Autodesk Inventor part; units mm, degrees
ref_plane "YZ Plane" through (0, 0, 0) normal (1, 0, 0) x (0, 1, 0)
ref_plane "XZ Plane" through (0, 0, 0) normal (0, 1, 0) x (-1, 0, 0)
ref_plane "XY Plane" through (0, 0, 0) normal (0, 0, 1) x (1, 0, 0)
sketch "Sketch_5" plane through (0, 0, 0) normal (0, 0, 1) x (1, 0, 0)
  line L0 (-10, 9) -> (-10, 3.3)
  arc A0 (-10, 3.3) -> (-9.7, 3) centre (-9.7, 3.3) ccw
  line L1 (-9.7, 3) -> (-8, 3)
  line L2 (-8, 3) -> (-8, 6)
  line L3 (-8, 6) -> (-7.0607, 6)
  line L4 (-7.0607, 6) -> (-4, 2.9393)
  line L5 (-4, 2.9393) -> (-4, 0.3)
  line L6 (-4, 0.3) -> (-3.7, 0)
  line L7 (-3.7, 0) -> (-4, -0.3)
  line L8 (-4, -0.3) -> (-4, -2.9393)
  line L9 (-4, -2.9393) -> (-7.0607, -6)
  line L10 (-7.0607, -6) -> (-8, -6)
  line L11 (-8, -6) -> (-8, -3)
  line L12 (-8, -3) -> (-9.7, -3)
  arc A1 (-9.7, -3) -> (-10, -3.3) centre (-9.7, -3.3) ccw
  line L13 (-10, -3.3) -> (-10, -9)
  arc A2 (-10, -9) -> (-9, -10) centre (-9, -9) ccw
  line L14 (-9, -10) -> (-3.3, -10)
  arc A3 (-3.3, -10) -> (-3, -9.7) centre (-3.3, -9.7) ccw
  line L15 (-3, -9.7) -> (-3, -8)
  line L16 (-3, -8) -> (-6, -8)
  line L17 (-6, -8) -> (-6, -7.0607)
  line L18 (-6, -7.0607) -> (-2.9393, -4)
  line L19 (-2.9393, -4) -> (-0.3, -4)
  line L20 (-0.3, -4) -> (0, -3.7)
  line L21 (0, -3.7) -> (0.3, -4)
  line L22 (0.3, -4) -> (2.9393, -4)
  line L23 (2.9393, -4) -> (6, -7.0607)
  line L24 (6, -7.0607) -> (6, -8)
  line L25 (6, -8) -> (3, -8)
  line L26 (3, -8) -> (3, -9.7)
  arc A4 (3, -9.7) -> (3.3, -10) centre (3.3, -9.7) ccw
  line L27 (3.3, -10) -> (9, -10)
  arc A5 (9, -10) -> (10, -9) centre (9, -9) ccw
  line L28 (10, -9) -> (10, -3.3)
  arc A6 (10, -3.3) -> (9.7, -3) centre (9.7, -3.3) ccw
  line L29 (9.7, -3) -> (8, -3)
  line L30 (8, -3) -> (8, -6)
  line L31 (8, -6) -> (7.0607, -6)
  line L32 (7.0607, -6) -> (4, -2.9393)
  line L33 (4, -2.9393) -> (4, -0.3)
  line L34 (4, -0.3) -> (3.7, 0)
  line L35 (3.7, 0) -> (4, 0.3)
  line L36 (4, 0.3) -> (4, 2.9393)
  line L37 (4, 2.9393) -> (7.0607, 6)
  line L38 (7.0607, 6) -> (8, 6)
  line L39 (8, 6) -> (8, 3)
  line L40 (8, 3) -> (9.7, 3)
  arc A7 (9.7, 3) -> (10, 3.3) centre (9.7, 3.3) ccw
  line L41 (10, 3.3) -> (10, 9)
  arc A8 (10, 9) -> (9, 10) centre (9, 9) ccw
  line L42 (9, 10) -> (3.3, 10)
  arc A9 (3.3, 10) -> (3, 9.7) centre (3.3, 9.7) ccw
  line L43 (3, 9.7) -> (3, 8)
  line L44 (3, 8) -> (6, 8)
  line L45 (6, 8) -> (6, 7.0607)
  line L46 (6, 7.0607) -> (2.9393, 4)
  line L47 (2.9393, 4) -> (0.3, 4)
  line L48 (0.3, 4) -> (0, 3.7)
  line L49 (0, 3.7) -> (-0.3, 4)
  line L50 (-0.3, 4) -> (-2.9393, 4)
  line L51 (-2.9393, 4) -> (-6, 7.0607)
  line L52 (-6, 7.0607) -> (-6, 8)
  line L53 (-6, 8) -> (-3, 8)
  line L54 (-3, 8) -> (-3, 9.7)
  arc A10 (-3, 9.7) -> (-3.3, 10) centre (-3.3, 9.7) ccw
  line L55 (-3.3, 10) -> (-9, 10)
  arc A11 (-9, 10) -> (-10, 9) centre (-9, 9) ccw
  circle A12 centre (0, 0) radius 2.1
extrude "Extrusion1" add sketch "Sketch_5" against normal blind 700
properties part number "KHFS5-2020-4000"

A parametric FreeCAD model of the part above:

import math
import FreeCAD as App
import Part
import Sketcher

V = App.Vector
Q = App.Units.Quantity

doc = App.newDocument("Part")
body = doc.addObject("PartDesign::Body", "Body")

sketch1 = body.newObject("Sketcher::SketchObject", "Sketch")
sketch1.AttachmentSupport = (doc.getObject("XY_Plane"), [""])
sketch1.MapMode = "FlatFace"
sketch1.addGeometry(Part.ArcOfCircle(Part.Circle(V(-9, 9, 0), V(0, 0, 1), 1), math.radians(90), math.radians(180)), False)
sketch1.addGeometry(Part.LineSegment(V(-10, 9, 0), V(-10, 3.3, 0)), False)
sketch1.addGeometry(Part.ArcOfCircle(Part.Circle(V(-9.7, 3.3, 0), V(0, 0, 1), 0.3), math.radians(180), math.radians(270)), False)
sketch1.addGeometry(Part.LineSegment(V(-9.7, 3, 0), V(-8, 3, 0)), False)
sketch1.addGeometry(Part.LineSegment(V(-8, 3, 0), V(-8, 6, 0)), False)
sketch1.addGeometry(Part.LineSegment(V(-8, 6, 0), V(-7.06, 6, 0)), False)
sketch1.addGeometry(Part.LineSegment(V(-7.06, 6, 0), V(-4, 2.94, 0)), False)
sketch1.addGeometry(Part.LineSegment(V(-4, 2.94, 0), V(-4, 0.3, 0)), False)
sketch1.addGeometry(Part.LineSegment(V(-4, 0.3, 0), V(-3.7, 0, 0)), False)
sketch1.addGeometry(Part.LineSegment(V(-3.7, 0, 0), V(-4, -0.3, 0)), False)
sketch1.addGeometry(Part.LineSegment(V(-4, -0.3, 0), V(-4, -2.94, 0)), False)
sketch1.addGeometry(Part.LineSegment(V(-4, -2.94, 0), V(-7.06, -6, 0)), False)
sketch1.addGeometry(Part.LineSegment(V(-7.06, -6, 0), V(-8, -6, 0)), False)
sketch1.addGeometry(Part.LineSegment(V(-8, -6, 0), V(-8, -3, 0)), False)
sketch1.addGeometry(Part.LineSegment(V(-8, -3, 0), V(-9.7, -3, 0)), False)
sketch1.addGeometry(Part.ArcOfCircle(Part.Circle(V(-9.7, -3.3, 0), V(0, 0, 1), 0.3), math.radians(90), math.radians(180)), False)
sketch1.addGeometry(Part.LineSegment(V(-10, -3.3, 0), V(-10, -9, 0)), False)
sketch1.addGeometry(Part.ArcOfCircle(Part.Circle(V(-9, -9, 0), V(0, 0, 1), 1), math.radians(180), math.radians(270)), False)
sketch1.addGeometry(Part.LineSegment(V(-9, -10, 0), V(-3.3, -10, 0)), False)
sketch1.addGeometry(Part.ArcOfCircle(Part.Circle(V(-3.3, -9.7, 0), V(0, 0, 1), 0.3), math.radians(-90), math.radians(0)), False)
sketch1.addGeometry(Part.LineSegment(V(-3, -9.7, 0), V(-3, -8, 0)), False)
sketch1.addGeometry(Part.LineSegment(V(-3, -8, 0), V(-6, -8, 0)), False)
sketch1.addGeometry(Part.LineSegment(V(-6, -8, 0), V(-6, -7.06, 0)), False)
sketch1.addGeometry(Part.LineSegment(V(-6, -7.06, 0), V(-2.94, -4, 0)), False)
sketch1.addGeometry(Part.LineSegment(V(-2.94, -4, 0), V(-0.3, -4, 0)), False)
sketch1.addGeometry(Part.LineSegment(V(-0.3, -4, 0), V(0, -3.7, 0)), False)
sketch1.addGeometry(Part.LineSegment(V(0, -3.7, 0), V(0.3, -4, 0)), False)
sketch1.addGeometry(Part.LineSegment(V(0.3, -4, 0), V(2.94, -4, 0)), False)
sketch1.addGeometry(Part.LineSegment(V(2.94, -4, 0), V(6, -7.06, 0)), False)
sketch1.addGeometry(Part.LineSegment(V(6, -7.06, 0), V(6, -8, 0)), False)
sketch1.addGeometry(Part.LineSegment(V(6, -8, 0), V(3, -8, 0)), False)
sketch1.addGeometry(Part.LineSegment(V(3, -8, 0), V(3, -9.7, 0)), False)
sketch1.addGeometry(Part.ArcOfCircle(Part.Circle(V(3.3, -9.7, 0), V(0, 0, 1), 0.3), math.radians(180), math.radians(270)), False)
sketch1.addGeometry(Part.LineSegment(V(3.3, -10, 0), V(9, -10, 0)), False)
sketch1.addGeometry(Part.ArcOfCircle(Part.Circle(V(9, -9, 0), V(0, 0, 1), 1), math.radians(-90), math.radians(0)), False)
sketch1.addGeometry(Part.LineSegment(V(10, -9, 0), V(10, -3.3, 0)), False)
sketch1.addGeometry(Part.ArcOfCircle(Part.Circle(V(9.7, -3.3, 0), V(0, 0, 1), 0.3), math.radians(0), math.radians(90)), False)
sketch1.addGeometry(Part.LineSegment(V(9.7, -3, 0), V(8, -3, 0)), False)
sketch1.addGeometry(Part.LineSegment(V(8, -3, 0), V(8, -6, 0)), False)
sketch1.addGeometry(Part.LineSegment(V(8, -6, 0), V(7.06, -6, 0)), False)
sketch1.addGeometry(Part.LineSegment(V(7.06, -6, 0), V(4, -2.94, 0)), False)
sketch1.addGeometry(Part.LineSegment(V(4, -2.94, 0), V(4, -0.3, 0)), False)
sketch1.addGeometry(Part.LineSegment(V(4, -0.3, 0), V(3.7, 0, 0)), False)
sketch1.addGeometry(Part.LineSegment(V(3.7, 0, 0), V(4, 0.3, 0)), False)
sketch1.addGeometry(Part.LineSegment(V(4, 0.3, 0), V(4, 2.94, 0)), False)
sketch1.addGeometry(Part.LineSegment(V(4, 2.94, 0), V(7.06, 6, 0)), False)
sketch1.addGeometry(Part.LineSegment(V(7.06, 6, 0), V(8, 6, 0)), False)
sketch1.addGeometry(Part.LineSegment(V(8, 6, 0), V(8, 3, 0)), False)
sketch1.addGeometry(Part.LineSegment(V(8, 3, 0), V(9.7, 3, 0)), False)
sketch1.addGeometry(Part.ArcOfCircle(Part.Circle(V(9.7, 3.3, 0), V(0, 0, 1), 0.3), math.radians(-90), math.radians(0)), False)
sketch1.addGeometry(Part.LineSegment(V(10, 3.3, 0), V(10, 9, 0)), False)
sketch1.addGeometry(Part.ArcOfCircle(Part.Circle(V(9, 9, 0), V(0, 0, 1), 1), math.radians(0), math.radians(90)), False)
sketch1.addGeometry(Part.LineSegment(V(9, 10, 0), V(3.3, 10, 0)), False)
sketch1.addGeometry(Part.ArcOfCircle(Part.Circle(V(3.3, 9.7, 0), V(0, 0, 1), 0.3), math.radians(90), math.radians(180)), False)
sketch1.addGeometry(Part.LineSegment(V(3, 9.7, 0), V(3, 8, 0)), False)
sketch1.addGeometry(Part.LineSegment(V(3, 8, 0), V(6, 8, 0)), False)
sketch1.addGeometry(Part.LineSegment(V(6, 8, 0), V(6, 7.06, 0)), False)
sketch1.addGeometry(Part.LineSegment(V(6, 7.06, 0), V(2.94, 4, 0)), False)
sketch1.addGeometry(Part.LineSegment(V(2.94, 4, 0), V(0.3, 4, 0)), False)
sketch1.addGeometry(Part.LineSegment(V(0.3, 4, 0), V(0, 3.7, 0)), False)
sketch1.addGeometry(Part.LineSegment(V(0, 3.7, 0), V(-0.3, 4, 0)), False)
sketch1.addGeometry(Part.LineSegment(V(-0.3, 4, 0), V(-2.94, 4, 0)), False)
sketch1.addGeometry(Part.LineSegment(V(-2.94, 4, 0), V(-6, 7.06, 0)), False)
sketch1.addGeometry(Part.LineSegment(V(-6, 7.06, 0), V(-6, 8, 0)), False)
sketch1.addGeometry(Part.LineSegment(V(-6, 8, 0), V(-3, 8, 0)), False)
sketch1.addGeometry(Part.LineSegment(V(-3, 8, 0), V(-3, 9.7, 0)), False)
sketch1.addGeometry(Part.ArcOfCircle(Part.Circle(V(-3.3, 9.7, 0), V(0, 0, 1), 0.3), math.radians(0), math.radians(90)), False)
sketch1.addGeometry(Part.LineSegment(V(-3.3, 10, 0), V(-9, 10, 0)), False)
sketch1.addGeometry(Part.Circle(V(0, 0, 0), V(0, 0, 1), 2.1), False)
sketch1.addConstraint(Sketcher.Constraint("Tangent", 0, 2, 1, 1))
sketch1.addConstraint(Sketcher.Constraint("Tangent", 1, 2, 2, 1))
sketch1.addConstraint(Sketcher.Constraint("Tangent", 2, 2, 3, 1))
sketch1.addConstraint(Sketcher.Constraint("Coincident", 3, 2, 4, 1))
sketch1.addConstraint(Sketcher.Constraint("Coincident", 4, 2, 5, 1))
sketch1.addConstraint(Sketcher.Constraint("Coincident", 5, 2, 6, 1))
sketch1.addConstraint(Sketcher.Constraint("Coincident", 6, 2, 7, 1))
sketch1.addConstraint(Sketcher.Constraint("Coincident", 7, 2, 8, 1))
sketch1.addConstraint(Sketcher.Constraint("Coincident", 8, 2, 9, 1))
sketch1.addConstraint(Sketcher.Constraint("Coincident", 9, 2, 10, 1))
sketch1.addConstraint(Sketcher.Constraint("Coincident", 10, 2, 11, 1))
sketch1.addConstraint(Sketcher.Constraint("Coincident", 11, 2, 12, 1))
sketch1.addConstraint(Sketcher.Constraint("Coincident", 12, 2, 13, 1))
sketch1.addConstraint(Sketcher.Constraint("Coincident", 13, 2, 14, 1))
sketch1.addConstraint(Sketcher.Constraint("Tangent", 14, 2, 15, 1))
sketch1.addConstraint(Sketcher.Constraint("Tangent", 15, 2, 16, 1))
sketch1.addConstraint(Sketcher.Constraint("Tangent", 16, 2, 17, 1))
sketch1.addConstraint(Sketcher.Constraint("Tangent", 17, 2, 18, 1))
sketch1.addConstraint(Sketcher.Constraint("Tangent", 18, 2, 19, 1))
sketch1.addConstraint(Sketcher.Constraint("Tangent", 19, 2, 20, 1))
sketch1.addConstraint(Sketcher.Constraint("Coincident", 20, 2, 21, 1))
sketch1.addConstraint(Sketcher.Constraint("Coincident", 21, 2, 22, 1))
sketch1.addConstraint(Sketcher.Constraint("Coincident", 22, 2, 23, 1))
sketch1.addConstraint(Sketcher.Constraint("Coincident", 23, 2, 24, 1))
sketch1.addConstraint(Sketcher.Constraint("Coincident", 24, 2, 25, 1))
sketch1.addConstraint(Sketcher.Constraint("Coincident", 25, 2, 26, 1))
sketch1.addConstraint(Sketcher.Constraint("Coincident", 26, 2, 27, 1))
sketch1.addConstraint(Sketcher.Constraint("Coincident", 27, 2, 28, 1))
sketch1.addConstraint(Sketcher.Constraint("Coincident", 28, 2, 29, 1))
sketch1.addConstraint(Sketcher.Constraint("Coincident", 29, 2, 30, 1))
sketch1.addConstraint(Sketcher.Constraint("Coincident", 30, 2, 31, 1))
sketch1.addConstraint(Sketcher.Constraint("Tangent", 31, 2, 32, 1))
sketch1.addConstraint(Sketcher.Constraint("Tangent", 32, 2, 33, 1))
sketch1.addConstraint(Sketcher.Constraint("Tangent", 33, 2, 34, 1))
sketch1.addConstraint(Sketcher.Constraint("Tangent", 34, 2, 35, 1))
sketch1.addConstraint(Sketcher.Constraint("Tangent", 35, 2, 36, 1))
sketch1.addConstraint(Sketcher.Constraint("Tangent", 36, 2, 37, 1))
sketch1.addConstraint(Sketcher.Constraint("Coincident", 37, 2, 38, 1))
sketch1.addConstraint(Sketcher.Constraint("Coincident", 38, 2, 39, 1))
sketch1.addConstraint(Sketcher.Constraint("Coincident", 39, 2, 40, 1))
sketch1.addConstraint(Sketcher.Constraint("Coincident", 40, 2, 41, 1))
sketch1.addConstraint(Sketcher.Constraint("Coincident", 41, 2, 42, 1))
sketch1.addConstraint(Sketcher.Constraint("Coincident", 42, 2, 43, 1))
sketch1.addConstraint(Sketcher.Constraint("Coincident", 43, 2, 44, 1))
sketch1.addConstraint(Sketcher.Constraint("Coincident", 44, 2, 45, 1))
sketch1.addConstraint(Sketcher.Constraint("Coincident", 45, 2, 46, 1))
sketch1.addConstraint(Sketcher.Constraint("Coincident", 46, 2, 47, 1))
sketch1.addConstraint(Sketcher.Constraint("Coincident", 47, 2, 48, 1))
sketch1.addConstraint(Sketcher.Constraint("Tangent", 48, 2, 49, 1))
sketch1.addConstraint(Sketcher.Constraint("Tangent", 49, 2, 50, 1))
sketch1.addConstraint(Sketcher.Constraint("Tangent", 50, 2, 51, 1))
sketch1.addConstraint(Sketcher.Constraint("Tangent", 51, 2, 52, 1))
sketch1.addConstraint(Sketcher.Constraint("Tangent", 52, 2, 53, 1))
sketch1.addConstraint(Sketcher.Constraint("Tangent", 53, 2, 54, 1))
sketch1.addConstraint(Sketcher.Constraint("Coincident", 54, 2, 55, 1))
sketch1.addConstraint(Sketcher.Constraint("Coincident", 55, 2, 56, 1))
sketch1.addConstraint(Sketcher.Constraint("Coincident", 56, 2, 57, 1))
sketch1.addConstraint(Sketcher.Constraint("Coincident", 57, 2, 58, 1))
sketch1.addConstraint(Sketcher.Constraint("Coincident", 58, 2, 59, 1))
sketch1.addConstraint(Sketcher.Constraint("Coincident", 59, 2, 60, 1))
sketch1.addConstraint(Sketcher.Constraint("Coincident", 60, 2, 61, 1))
sketch1.addConstraint(Sketcher.Constraint("Coincident", 61, 2, 62, 1))
sketch1.addConstraint(Sketcher.Constraint("Coincident", 62, 2, 63, 1))
sketch1.addConstraint(Sketcher.Constraint("Coincident", 63, 2, 64, 1))
sketch1.addConstraint(Sketcher.Constraint("Coincident", 64, 2, 65, 1))
sketch1.addConstraint(Sketcher.Constraint("Tangent", 65, 2, 66, 1))
sketch1.addConstraint(Sketcher.Constraint("Tangent", 66, 2, 67, 1))
sketch1.addConstraint(Sketcher.Constraint("Tangent", 67, 2, 0, 1))
sketch1.addConstraint(Sketcher.Constraint("Vertical", 1))
sketch1.addConstraint(Sketcher.Constraint("Horizontal", 3))
sketch1.addConstraint(Sketcher.Constraint("Vertical", 4))
sketch1.addConstraint(Sketcher.Constraint("Horizontal", 5))
sketch1.addConstraint(Sketcher.Constraint("Vertical", 7))
sketch1.addConstraint(Sketcher.Constraint("Vertical", 10))
sketch1.addConstraint(Sketcher.Constraint("Horizontal", 12))
sketch1.addConstraint(Sketcher.Constraint("Vertical", 13))
sketch1.addConstraint(Sketcher.Constraint("Horizontal", 14))
sketch1.addConstraint(Sketcher.Constraint("Vertical", 16))
sketch1.addConstraint(Sketcher.Constraint("Horizontal", 18))
sketch1.addConstraint(Sketcher.Constraint("Vertical", 20))
sketch1.addConstraint(Sketcher.Constraint("Horizontal", 21))
sketch1.addConstraint(Sketcher.Constraint("Vertical", 22))
sketch1.addConstraint(Sketcher.Constraint("Horizontal", 24))
sketch1.addConstraint(Sketcher.Constraint("Horizontal", 27))
sketch1.addConstraint(Sketcher.Constraint("Vertical", 29))
sketch1.addConstraint(Sketcher.Constraint("Horizontal", 30))
sketch1.addConstraint(Sketcher.Constraint("Vertical", 31))
sketch1.addConstraint(Sketcher.Constraint("Horizontal", 33))
sketch1.addConstraint(Sketcher.Constraint("Vertical", 35))
sketch1.addConstraint(Sketcher.Constraint("Horizontal", 37))
sketch1.addConstraint(Sketcher.Constraint("Vertical", 38))
sketch1.addConstraint(Sketcher.Constraint("Horizontal", 39))
sketch1.addConstraint(Sketcher.Constraint("Vertical", 41))
sketch1.addConstraint(Sketcher.Constraint("Vertical", 44))
sketch1.addConstraint(Sketcher.Constraint("Horizontal", 46))
sketch1.addConstraint(Sketcher.Constraint("Vertical", 47))
sketch1.addConstraint(Sketcher.Constraint("Horizontal", 48))
sketch1.addConstraint(Sketcher.Constraint("Vertical", 50))
sketch1.addConstraint(Sketcher.Constraint("Horizontal", 52))
sketch1.addConstraint(Sketcher.Constraint("Vertical", 54))
sketch1.addConstraint(Sketcher.Constraint("Horizontal", 55))
sketch1.addConstraint(Sketcher.Constraint("Vertical", 56))
sketch1.addConstraint(Sketcher.Constraint("Horizontal", 58))
sketch1.addConstraint(Sketcher.Constraint("Horizontal", 61))
sketch1.addConstraint(Sketcher.Constraint("Vertical", 63))
sketch1.addConstraint(Sketcher.Constraint("Horizontal", 64))
sketch1.addConstraint(Sketcher.Constraint("Vertical", 65))
sketch1.addConstraint(Sketcher.Constraint("Horizontal", 67))
sketch1.addConstraint(Sketcher.Constraint("Coincident", 68, 3, -1, 1))
sketch1.addConstraint(Sketcher.Constraint("Equal", 2, 15))
sketch1.addConstraint(Sketcher.Constraint("Equal", 0, 17))
sketch1.addConstraint(Sketcher.Constraint("Equal", 15, 19))
sketch1.addConstraint(Sketcher.Constraint("Equal", 19, 32))
sketch1.addConstraint(Sketcher.Constraint("Equal", 17, 34))
sketch1.addConstraint(Sketcher.Constraint("Equal", 32, 36))
sketch1.addConstraint(Sketcher.Constraint("Equal", 36, 49))
sketch1.addConstraint(Sketcher.Constraint("Equal", 34, 51))
sketch1.addConstraint(Sketcher.Constraint("Equal", 49, 53))
sketch1.addConstraint(Sketcher.Constraint("Equal", 53, 66))
sketch1.addConstraint(Sketcher.Constraint("Symmetric", 0, 3, 34, 3, -1, 1))
sketch1.addConstraint(Sketcher.Constraint("Symmetric", 15, 3, 49, 3, -1, 1))
sketch1.addConstraint(Sketcher.Constraint("Symmetric", 19, 3, 53, 3, -1, 1))
sketch1.addConstraint(Sketcher.Constraint("Symmetric", 3, 2, 37, 2, -1, 1))
sketch1.addConstraint(Sketcher.Constraint("Symmetric", 5, 2, 39, 2, -1, 1))
sketch1.addConstraint(Sketcher.Constraint("Symmetric", 6, 2, 40, 2, -1, 1))
sketch1.addConstraint(Sketcher.Constraint("Symmetric", 8, 2, 42, 2, -1, 1))
sketch1.addConstraint(Sketcher.Constraint("Symmetric", 9, 2, 43, 2, -1, 1))
sketch1.addConstraint(Sketcher.Constraint("Symmetric", 11, 2, 45, 2, -1, 1))
sketch1.addConstraint(Sketcher.Constraint("Symmetric", 21, 2, 55, 2, -1, 1))
sketch1.addConstraint(Sketcher.Constraint("Symmetric", 23, 2, 57, 2, -1, 1))
sketch1.addConstraint(Sketcher.Constraint("Symmetric", 25, 2, 59, 2, -1, 1))
sketch1.addConstraint(Sketcher.Constraint("Symmetric", 26, 2, 60, 2, -1, 1))
sketch1.addConstraint(Sketcher.Constraint("Symmetric", 28, 2, 62, 2, -1, 1))
sketch1.addConstraint(Sketcher.Constraint("Symmetric", 30, 2, 64, 2, -1, 1))
sketch1.addConstraint(Sketcher.Constraint("Symmetric", 19, 3, 32, 3, -2))
sketch1.addConstraint(Sketcher.Constraint("Symmetric", 15, 3, 36, 3, -2))
sketch1.addConstraint(Sketcher.Constraint("Symmetric", 24, 2, 26, 2, -2))
sketch1.addConstraint(Sketcher.Constraint("Symmetric", 22, 2, 28, 2, -2))
sketch1.addConstraint(Sketcher.Constraint("Symmetric", 12, 2, 38, 2, -2))
sketch1.addConstraint(Sketcher.Constraint("Symmetric", 10, 2, 40, 2, -2))
sketch1.addConstraint(Sketcher.Constraint("PointOnObject", 8, 2, -1))
sketch1.addConstraint(Sketcher.Constraint("PointOnObject", 25, 2, -2))
sketch1.addConstraint(Sketcher.Constraint("Parallel", 6, 8))
sketch1.addConstraint(Sketcher.Constraint("Perpendicular", 8, 9))
sketch1.addConstraint(Sketcher.Constraint("Parallel", 9, 11))
sketch1.addConstraint(Sketcher.Constraint("Parallel", 11, 23))
sketch1.addConstraint(Sketcher.Constraint("Parallel", 23, 25))
sketch1.addConstraint(Sketcher.Constraint("Perpendicular", 25, 26))
sketch1.addConstraint(Sketcher.Constraint("Parallel", 26, 28))
sketch1.addConstraint(Sketcher.Constraint("Parallel", 40, 42))
sketch1.addConstraint(Sketcher.Constraint("Parallel", 43, 45))
sketch1.addConstraint(Sketcher.Constraint("Parallel", 45, 57))
sketch1.addConstraint(Sketcher.Constraint("Parallel", 57, 59))
sketch1.addConstraint(Sketcher.Constraint("Parallel", 60, 62))
sketch1.addConstraint(Sketcher.Constraint("Horizontal", 21, 2, 29, 2))
sketch1.addConstraint(Sketcher.Constraint("Vertical", 38, 2, 46, 2))
sketch1.addConstraint(Sketcher.Constraint("Equal", 67, 1))
sketch1.addConstraint(Sketcher.Constraint("Equal", 64, 4))
sketch1.addConstraint(Sketcher.Constraint("Equal", 61, 7))
sketch1.addConstraint(Sketcher.Constraint("Equal", 48, 20))
sketch1.addConstraint(Sketcher.Constraint("Equal", 46, 22))
sketch1.addConstraint(Sketcher.Constraint("Equal", 11, 23))
sketch1.addConstraint(Sketcher.Constraint("Equal", 9, 25))
sketch1.addConstraint(Sketcher.Constraint("Radius", 0, Q("1 mm")))
sketch1.addConstraint(Sketcher.Constraint("Diameter", 68, Q("4.2 mm")))
sketch1.addConstraint(Sketcher.Constraint("Radius", 2, Q("0.3 mm")))
sketch1.addConstraint(Sketcher.Constraint("DistanceX", 21, 2, 21, 1, Q("3 mm")))
sketch1.addConstraint(Sketcher.Constraint("DistanceX", 3, 1, 3, 2, Q("1.7 mm")))
sketch1.addConstraint(Sketcher.Constraint("DistanceX", 18, 1, 18, 2, Q("5.7 mm")))
sketch1.addConstraint(Sketcher.Constraint("DistanceX", 0, 3, -1, 1, Q("9 mm")))
sketch1.addConstraint(Sketcher.Constraint("DistanceX", 6, 2, -1, 1, Q("4 mm")))
sketch1.addConstraint(Sketcher.Constraint("DistanceY", -1, 1, 7, 2, Q("0.3 mm")))
sketch1.addConstraint(Sketcher.Constraint("DistanceX", 5, 1, 5, 2, Q("0.9393 mm")))
pad1 = body.newObject("PartDesign::Pad", "Pad")
pad1.Profile = sketch1
pad1.Length = 700
pad1.Reversed = True

doc.recompute()
